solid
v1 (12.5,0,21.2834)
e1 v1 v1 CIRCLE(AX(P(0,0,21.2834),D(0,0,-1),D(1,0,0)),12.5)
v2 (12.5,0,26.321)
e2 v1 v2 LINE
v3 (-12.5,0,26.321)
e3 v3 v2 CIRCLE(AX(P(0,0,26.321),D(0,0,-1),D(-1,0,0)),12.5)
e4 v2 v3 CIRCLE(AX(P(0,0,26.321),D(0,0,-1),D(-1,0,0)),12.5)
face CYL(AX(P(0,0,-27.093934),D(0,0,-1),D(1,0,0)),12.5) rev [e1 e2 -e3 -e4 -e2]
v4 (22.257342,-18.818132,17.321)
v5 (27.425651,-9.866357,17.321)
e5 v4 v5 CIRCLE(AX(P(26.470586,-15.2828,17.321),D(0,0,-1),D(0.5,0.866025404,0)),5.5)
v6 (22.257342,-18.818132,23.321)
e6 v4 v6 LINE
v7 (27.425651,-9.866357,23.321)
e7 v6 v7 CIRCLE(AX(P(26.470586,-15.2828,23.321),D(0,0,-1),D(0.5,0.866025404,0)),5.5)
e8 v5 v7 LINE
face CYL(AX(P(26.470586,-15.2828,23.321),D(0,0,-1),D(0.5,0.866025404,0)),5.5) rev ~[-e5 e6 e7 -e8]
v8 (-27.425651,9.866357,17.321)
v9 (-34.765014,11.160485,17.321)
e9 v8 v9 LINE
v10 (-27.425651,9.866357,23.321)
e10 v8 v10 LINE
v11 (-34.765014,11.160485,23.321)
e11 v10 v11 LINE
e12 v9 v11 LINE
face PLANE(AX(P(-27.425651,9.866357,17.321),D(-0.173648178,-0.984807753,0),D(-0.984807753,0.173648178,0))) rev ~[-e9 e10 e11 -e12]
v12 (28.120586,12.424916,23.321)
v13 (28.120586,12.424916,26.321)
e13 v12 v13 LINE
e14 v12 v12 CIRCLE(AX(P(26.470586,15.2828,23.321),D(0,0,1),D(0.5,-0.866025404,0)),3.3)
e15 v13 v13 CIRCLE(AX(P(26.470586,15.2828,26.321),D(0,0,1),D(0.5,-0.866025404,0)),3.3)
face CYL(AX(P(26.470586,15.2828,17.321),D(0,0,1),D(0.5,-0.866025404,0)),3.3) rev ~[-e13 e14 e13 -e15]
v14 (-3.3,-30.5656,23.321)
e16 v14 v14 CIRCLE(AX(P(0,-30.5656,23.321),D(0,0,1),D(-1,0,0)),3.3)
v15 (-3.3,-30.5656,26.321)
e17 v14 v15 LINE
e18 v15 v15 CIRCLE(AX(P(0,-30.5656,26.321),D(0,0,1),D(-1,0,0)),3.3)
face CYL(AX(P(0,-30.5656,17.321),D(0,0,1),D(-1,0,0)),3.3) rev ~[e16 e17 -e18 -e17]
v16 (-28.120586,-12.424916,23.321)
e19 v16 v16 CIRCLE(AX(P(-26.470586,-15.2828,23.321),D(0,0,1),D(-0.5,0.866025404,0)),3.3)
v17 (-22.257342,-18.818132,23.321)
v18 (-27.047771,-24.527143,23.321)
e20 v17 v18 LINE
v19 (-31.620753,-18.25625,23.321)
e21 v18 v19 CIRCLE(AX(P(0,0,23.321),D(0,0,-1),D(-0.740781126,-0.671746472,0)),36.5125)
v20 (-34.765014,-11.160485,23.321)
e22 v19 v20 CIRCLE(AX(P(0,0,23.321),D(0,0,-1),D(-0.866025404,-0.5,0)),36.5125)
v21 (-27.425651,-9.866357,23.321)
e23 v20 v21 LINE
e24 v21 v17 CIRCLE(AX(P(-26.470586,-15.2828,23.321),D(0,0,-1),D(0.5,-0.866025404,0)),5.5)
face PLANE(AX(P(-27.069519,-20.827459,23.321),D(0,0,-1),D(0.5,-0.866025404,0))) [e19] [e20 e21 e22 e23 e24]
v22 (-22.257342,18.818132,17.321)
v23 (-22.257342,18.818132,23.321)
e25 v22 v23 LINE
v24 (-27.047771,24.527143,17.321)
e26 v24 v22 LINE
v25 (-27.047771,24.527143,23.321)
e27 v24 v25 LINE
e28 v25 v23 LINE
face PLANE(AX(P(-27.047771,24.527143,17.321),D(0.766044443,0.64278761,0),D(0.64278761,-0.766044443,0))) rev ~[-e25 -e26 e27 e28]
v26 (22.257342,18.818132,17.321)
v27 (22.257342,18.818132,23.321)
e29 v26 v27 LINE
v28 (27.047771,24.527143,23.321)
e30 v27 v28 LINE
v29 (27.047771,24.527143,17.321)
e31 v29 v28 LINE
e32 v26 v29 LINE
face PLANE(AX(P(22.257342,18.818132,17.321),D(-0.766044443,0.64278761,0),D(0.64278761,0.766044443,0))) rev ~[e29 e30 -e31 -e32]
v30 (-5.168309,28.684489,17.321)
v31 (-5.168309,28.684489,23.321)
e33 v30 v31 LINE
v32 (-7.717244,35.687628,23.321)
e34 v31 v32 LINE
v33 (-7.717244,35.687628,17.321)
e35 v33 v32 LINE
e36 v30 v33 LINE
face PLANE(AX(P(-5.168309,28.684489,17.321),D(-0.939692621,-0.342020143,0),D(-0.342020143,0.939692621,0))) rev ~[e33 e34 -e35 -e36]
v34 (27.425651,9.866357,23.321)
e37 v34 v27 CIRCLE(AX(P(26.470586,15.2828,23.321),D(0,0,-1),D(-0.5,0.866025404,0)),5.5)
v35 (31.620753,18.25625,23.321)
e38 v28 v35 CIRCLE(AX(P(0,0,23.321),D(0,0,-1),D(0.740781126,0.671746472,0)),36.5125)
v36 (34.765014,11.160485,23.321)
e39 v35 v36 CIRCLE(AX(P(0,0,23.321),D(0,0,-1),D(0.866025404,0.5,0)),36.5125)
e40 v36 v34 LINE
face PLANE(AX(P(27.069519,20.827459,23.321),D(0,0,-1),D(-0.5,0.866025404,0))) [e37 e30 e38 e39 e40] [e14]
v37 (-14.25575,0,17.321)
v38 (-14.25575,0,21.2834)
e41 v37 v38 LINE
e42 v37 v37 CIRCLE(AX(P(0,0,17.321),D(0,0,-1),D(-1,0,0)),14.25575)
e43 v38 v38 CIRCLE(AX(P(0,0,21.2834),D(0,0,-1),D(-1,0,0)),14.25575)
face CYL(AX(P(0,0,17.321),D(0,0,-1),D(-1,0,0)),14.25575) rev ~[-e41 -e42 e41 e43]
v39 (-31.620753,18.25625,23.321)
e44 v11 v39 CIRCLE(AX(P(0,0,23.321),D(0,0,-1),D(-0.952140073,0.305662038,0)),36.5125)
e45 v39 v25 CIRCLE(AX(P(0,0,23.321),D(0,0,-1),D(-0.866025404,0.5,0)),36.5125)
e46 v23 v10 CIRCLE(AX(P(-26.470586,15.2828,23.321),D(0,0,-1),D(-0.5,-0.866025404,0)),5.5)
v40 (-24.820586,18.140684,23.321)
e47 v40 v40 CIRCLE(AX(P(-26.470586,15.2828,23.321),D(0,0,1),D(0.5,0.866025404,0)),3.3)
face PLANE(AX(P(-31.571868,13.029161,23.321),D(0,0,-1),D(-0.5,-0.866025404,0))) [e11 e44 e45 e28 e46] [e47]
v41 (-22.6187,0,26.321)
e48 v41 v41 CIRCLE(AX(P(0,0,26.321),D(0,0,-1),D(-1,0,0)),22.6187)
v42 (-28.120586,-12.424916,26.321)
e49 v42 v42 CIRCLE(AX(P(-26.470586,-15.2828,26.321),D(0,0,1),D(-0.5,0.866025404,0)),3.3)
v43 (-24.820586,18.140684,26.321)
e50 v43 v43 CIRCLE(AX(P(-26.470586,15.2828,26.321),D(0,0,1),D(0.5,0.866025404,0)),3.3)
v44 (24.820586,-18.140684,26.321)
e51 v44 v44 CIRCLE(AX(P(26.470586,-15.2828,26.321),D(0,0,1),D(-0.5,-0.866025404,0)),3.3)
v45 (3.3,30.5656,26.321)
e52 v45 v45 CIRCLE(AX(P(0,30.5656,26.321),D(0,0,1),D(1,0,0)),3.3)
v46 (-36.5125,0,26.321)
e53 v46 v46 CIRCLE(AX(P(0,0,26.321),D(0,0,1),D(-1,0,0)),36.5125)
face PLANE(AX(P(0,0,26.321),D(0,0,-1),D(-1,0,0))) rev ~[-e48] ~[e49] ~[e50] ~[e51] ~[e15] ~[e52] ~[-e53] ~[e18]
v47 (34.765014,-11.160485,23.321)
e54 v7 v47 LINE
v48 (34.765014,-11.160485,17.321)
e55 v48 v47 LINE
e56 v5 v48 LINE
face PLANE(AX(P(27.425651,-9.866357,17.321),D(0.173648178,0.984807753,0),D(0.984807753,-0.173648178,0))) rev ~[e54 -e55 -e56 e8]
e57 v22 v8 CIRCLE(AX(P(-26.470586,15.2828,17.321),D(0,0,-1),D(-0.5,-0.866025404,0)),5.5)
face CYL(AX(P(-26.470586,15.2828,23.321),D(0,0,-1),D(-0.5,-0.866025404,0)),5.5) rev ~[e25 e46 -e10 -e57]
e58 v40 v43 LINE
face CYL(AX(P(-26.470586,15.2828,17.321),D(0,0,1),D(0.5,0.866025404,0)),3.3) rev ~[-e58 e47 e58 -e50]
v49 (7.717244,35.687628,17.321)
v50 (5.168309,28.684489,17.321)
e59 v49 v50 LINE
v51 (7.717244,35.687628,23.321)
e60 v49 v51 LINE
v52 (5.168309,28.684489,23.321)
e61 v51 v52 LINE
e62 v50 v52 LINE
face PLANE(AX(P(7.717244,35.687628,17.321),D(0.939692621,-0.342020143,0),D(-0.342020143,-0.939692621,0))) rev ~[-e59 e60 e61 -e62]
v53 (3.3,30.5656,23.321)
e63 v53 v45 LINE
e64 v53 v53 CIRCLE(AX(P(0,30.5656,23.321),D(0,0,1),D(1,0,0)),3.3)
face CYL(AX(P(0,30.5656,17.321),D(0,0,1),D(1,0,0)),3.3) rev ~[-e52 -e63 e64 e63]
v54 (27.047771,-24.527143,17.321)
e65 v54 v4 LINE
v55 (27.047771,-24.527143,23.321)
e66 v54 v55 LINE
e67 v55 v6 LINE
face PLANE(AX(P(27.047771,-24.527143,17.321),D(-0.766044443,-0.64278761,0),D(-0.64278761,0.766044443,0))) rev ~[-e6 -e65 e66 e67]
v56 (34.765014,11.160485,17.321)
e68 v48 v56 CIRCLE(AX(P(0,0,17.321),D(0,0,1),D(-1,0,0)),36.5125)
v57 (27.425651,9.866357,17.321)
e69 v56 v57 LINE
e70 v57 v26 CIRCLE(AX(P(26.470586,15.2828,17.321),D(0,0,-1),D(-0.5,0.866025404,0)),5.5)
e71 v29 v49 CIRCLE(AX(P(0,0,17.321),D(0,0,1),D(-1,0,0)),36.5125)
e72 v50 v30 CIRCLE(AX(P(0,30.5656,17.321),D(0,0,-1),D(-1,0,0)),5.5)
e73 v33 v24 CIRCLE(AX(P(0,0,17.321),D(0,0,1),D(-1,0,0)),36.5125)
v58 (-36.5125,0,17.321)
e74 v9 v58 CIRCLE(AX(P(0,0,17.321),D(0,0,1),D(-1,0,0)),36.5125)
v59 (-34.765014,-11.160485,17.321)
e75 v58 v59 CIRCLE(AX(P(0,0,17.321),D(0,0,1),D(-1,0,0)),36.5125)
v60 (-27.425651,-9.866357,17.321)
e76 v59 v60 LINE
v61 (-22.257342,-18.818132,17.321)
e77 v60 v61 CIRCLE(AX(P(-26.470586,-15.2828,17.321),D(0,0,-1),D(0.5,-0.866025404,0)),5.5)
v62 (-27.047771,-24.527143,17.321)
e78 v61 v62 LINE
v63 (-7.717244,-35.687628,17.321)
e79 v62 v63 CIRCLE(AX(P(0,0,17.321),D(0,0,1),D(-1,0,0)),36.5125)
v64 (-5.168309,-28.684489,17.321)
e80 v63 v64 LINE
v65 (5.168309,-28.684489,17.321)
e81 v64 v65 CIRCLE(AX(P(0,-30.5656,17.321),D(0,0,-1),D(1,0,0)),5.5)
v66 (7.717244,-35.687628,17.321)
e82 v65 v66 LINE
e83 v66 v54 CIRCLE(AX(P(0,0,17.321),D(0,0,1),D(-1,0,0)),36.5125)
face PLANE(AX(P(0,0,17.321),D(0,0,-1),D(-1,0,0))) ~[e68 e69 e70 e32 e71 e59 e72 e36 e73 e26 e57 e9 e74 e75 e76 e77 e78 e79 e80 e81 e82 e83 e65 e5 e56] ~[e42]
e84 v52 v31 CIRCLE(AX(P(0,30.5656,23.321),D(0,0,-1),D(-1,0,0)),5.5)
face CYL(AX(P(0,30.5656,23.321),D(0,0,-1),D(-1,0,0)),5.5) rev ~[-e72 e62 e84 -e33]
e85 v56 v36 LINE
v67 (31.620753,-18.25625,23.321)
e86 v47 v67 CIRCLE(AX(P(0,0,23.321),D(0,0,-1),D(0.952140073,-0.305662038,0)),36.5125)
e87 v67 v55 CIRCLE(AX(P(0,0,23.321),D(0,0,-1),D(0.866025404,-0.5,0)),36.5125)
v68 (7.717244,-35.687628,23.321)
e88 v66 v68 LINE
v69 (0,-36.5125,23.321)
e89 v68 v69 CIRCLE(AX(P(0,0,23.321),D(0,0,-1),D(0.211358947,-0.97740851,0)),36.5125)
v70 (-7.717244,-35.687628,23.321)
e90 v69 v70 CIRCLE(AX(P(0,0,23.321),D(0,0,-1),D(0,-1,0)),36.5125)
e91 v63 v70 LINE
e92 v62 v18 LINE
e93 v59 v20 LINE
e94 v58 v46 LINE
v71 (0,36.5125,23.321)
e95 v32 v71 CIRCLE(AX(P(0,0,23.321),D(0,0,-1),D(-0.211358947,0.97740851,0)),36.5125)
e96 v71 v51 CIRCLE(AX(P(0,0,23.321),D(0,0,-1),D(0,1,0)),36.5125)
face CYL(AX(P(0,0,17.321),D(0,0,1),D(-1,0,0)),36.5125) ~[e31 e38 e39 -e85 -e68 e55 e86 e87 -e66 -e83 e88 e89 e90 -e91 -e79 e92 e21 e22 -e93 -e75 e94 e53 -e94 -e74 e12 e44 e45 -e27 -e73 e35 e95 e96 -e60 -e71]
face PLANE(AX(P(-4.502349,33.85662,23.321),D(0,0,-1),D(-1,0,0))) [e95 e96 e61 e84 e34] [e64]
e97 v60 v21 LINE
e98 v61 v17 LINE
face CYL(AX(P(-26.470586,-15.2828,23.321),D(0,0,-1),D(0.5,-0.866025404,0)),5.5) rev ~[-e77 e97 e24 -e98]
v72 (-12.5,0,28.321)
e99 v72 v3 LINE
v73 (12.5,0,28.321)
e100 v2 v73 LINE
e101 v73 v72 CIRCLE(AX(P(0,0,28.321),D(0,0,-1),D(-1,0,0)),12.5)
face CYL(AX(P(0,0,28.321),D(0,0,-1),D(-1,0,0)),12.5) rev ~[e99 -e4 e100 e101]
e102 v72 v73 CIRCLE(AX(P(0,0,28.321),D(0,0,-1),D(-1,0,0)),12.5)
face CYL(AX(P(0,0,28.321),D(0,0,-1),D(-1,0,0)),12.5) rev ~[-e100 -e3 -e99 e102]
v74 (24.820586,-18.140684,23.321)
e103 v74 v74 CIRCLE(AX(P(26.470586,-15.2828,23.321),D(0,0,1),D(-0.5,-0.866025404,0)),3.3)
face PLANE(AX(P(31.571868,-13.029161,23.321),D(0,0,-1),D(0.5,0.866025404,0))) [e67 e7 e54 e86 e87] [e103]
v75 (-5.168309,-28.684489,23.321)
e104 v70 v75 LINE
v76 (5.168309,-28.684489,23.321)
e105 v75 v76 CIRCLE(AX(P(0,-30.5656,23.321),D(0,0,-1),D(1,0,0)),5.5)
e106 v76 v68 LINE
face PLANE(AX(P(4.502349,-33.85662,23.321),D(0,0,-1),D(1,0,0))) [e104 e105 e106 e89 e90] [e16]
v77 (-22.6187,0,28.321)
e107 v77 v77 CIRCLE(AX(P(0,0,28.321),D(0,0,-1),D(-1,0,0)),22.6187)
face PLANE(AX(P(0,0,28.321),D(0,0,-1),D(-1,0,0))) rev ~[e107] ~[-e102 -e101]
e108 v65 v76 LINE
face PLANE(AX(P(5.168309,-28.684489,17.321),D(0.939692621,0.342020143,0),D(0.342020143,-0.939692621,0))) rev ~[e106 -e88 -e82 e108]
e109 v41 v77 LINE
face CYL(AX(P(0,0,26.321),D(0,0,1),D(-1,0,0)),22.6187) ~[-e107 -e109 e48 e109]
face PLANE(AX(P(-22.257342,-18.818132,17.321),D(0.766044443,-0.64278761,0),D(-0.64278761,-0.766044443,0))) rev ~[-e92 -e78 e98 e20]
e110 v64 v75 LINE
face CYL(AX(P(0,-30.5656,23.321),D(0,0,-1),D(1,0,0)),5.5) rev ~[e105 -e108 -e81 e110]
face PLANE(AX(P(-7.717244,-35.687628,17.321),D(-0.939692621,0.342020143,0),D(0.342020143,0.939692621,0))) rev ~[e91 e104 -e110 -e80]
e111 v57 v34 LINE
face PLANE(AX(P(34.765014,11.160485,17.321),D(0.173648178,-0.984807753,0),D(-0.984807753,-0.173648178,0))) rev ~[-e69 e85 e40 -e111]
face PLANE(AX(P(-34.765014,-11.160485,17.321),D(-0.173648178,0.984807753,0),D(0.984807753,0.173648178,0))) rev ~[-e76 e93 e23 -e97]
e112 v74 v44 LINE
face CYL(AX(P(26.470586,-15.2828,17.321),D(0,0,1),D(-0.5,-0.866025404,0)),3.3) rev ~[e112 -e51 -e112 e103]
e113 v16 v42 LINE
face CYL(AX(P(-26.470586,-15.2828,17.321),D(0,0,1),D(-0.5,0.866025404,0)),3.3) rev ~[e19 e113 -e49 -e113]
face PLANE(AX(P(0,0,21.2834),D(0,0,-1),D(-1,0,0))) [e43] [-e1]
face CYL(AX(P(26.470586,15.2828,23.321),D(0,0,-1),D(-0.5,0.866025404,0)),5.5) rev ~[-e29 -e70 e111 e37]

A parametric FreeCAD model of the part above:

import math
import FreeCAD as App
import Part
import Sketcher

V = App.Vector
Q = App.Units.Quantity

doc = App.newDocument("Part")
body = doc.addObject("PartDesign::Body", "Body")

# Sketch on YZ plane
sketch1 = doc.addObject("Sketcher::SketchObject", "Sketch")
body.addObject(sketch1)
sketch1.AttachmentSupport = (doc.YZ_Plane, [""])
sketch1.MapMode = "FlatFace"
sketch1.addGeometry([
    Part.LineSegment(V(-22.6, 26.3, 0), V(-36.5, 26.3, 0)),  # 0
    Part.LineSegment(V(-36.5, 26.3, 0), V(-36.5, 17.3, 0)),  # 1
    Part.LineSegment(V(-36.5, 17.3, 0), V(-9.5, 17.3, 0)),  # 2
    Part.LineSegment(V(-9.5, 17.3, 0), V(-9.5, 26.3, 0)),  # 3
    Part.LineSegment(V(-9.5, 26.3, 0), V(-12.5, 26.3, 0)),  # 4
    Part.LineSegment(V(-12.5, 26.3, 0), V(-12.5, 28.3, 0)),  # 5
    Part.LineSegment(V(-12.5, 28.3, 0), V(-22.6, 28.3, 0)),  # 6
    Part.LineSegment(V(-22.6, 28.3, 0), V(-22.6, 26.3, 0)),  # 7
    Part.LineSegment(V(36.5, 26.3, 0), V(22.6, 26.3, 0)),  # 8
    Part.LineSegment(V(22.6, 26.3, 0), V(22.6, 28.3, 0)),  # 9
    Part.LineSegment(V(22.6, 28.3, 0), V(12.5, 28.3, 0)),  # 10
    Part.LineSegment(V(12.5, 28.3, 0), V(12.5, 26.3, 0)),  # 11
    Part.LineSegment(V(12.5, 26.3, 0), V(9.5, 26.3, 0)),  # 12
    Part.LineSegment(V(9.5, 26.3, 0), V(9.5, 17.3, 0)),  # 13
    Part.LineSegment(V(9.5, 17.3, 0), V(36.5, 17.3, 0)),  # 14
    Part.LineSegment(V(36.5, 17.3, 0), V(36.5, 26.3, 0)),  # 15
], False)
sketch1.addConstraint([
    Sketcher.Constraint("Coincident", 0, 2, 1, 1),
    Sketcher.Constraint("Coincident", 1, 2, 2, 1),
    Sketcher.Constraint("Coincident", 2, 2, 3, 1),
    Sketcher.Constraint("Coincident", 3, 2, 4, 1),
    Sketcher.Constraint("Coincident", 4, 2, 5, 1),
    Sketcher.Constraint("Coincident", 5, 2, 6, 1),
    Sketcher.Constraint("Coincident", 6, 2, 7, 1),
    Sketcher.Constraint("Coincident", 7, 2, 0, 1),
    Sketcher.Constraint("Coincident", 8, 2, 9, 1),
    Sketcher.Constraint("Coincident", 9, 2, 10, 1),
    Sketcher.Constraint("Coincident", 10, 2, 11, 1),
    Sketcher.Constraint("Coincident", 11, 2, 12, 1),
    Sketcher.Constraint("Coincident", 12, 2, 13, 1),
    Sketcher.Constraint("Coincident", 13, 2, 14, 1),
    Sketcher.Constraint("Coincident", 14, 2, 15, 1),
    Sketcher.Constraint("Coincident", 15, 2, 8, 1),
    Sketcher.Constraint("Horizontal", 0),
    Sketcher.Constraint("Vertical", 1),
    Sketcher.Constraint("Horizontal", 2),
    Sketcher.Constraint("Vertical", 3),
    Sketcher.Constraint("Horizontal", 4),
    Sketcher.Constraint("Vertical", 5),
    Sketcher.Constraint("Horizontal", 6),
    Sketcher.Constraint("Vertical", 7),
    Sketcher.Constraint("Horizontal", 8),
    Sketcher.Constraint("Vertical", 9),
    Sketcher.Constraint("Horizontal", 10),
    Sketcher.Constraint("Vertical", 11),
    Sketcher.Constraint("Horizontal", 12),
    Sketcher.Constraint("Vertical", 13),
    Sketcher.Constraint("Horizontal", 14),
    Sketcher.Constraint("Vertical", 15),
    Sketcher.Constraint("Symmetric", 7, 2, 8, 2, -2),
    Sketcher.Constraint("Symmetric", 5, 2, 10, 2, -2),
    Sketcher.Constraint("Symmetric", 3, 2, 12, 2, -2),
    Sketcher.Constraint("Symmetric", 1, 2, 14, 2, -2),
    Sketcher.Constraint("Horizontal", 0, 2, 3, 2),
    Sketcher.Constraint("DistanceY", 1, 2, 1, 1, Q("9 mm")),
    Sketcher.Constraint("DistanceY", 5, 1, 5, 2, Q("2 mm")),
    Sketcher.Constraint("DistanceX", 5, 2, 10, 2, Q("25 mm")),
    Sketcher.Constraint("DistanceX", 4, 2, 4, 1, Q("2.975 mm")),
    Sketcher.Constraint("DistanceX", 0, 2, 0, 1, Q("13.8938 mm")),
    Sketcher.Constraint("DistanceX", 2, 1, 2, 2, Q("26.9875 mm")),
    Sketcher.Constraint("DistanceY", -1, 1, 0, 2, Q("26.321 mm")),
])
revolution = doc.addObject("PartDesign::Revolution", "Revolution")
body.addObject(revolution)
revolution.Profile = sketch1
revolution.ReferenceAxis = (sketch1, ["V_Axis"])
revolution.Angle = 360

# Sketch on XY plane
sketch2 = doc.addObject("Sketcher::SketchObject", "Sketch001")
body.addObject(sketch2)
sketch2.AttachmentSupport = (doc.XY_Plane, [""])
sketch2.MapMode = "FlatFace"
sketch2.AttachmentOffset = App.Placement(V(0, 0, 26.321), App.Rotation())
sketch2.addGeometry(Part.Circle(V(0, 0, 0), V(0, 0, 1), 12), False)
sketch2.addConstraint([
    Sketcher.Constraint("Coincident", 0, 3, -1, 1),
    Sketcher.Constraint("Diameter", 0, Q("25 mm")),
])
pocket1 = doc.addObject("PartDesign::Pocket", "Pocket")
body.addObject(pocket1)
pocket1.Profile = sketch2
pocket1.Type = "ThroughAll"
pocket1.Midplane = True

# Sketch on XY plane
sketch3 = doc.addObject("Sketcher::SketchObject", "Sketch002")
body.addObject(sketch3)
sketch3.AttachmentSupport = (doc.XY_Plane, [""])
sketch3.MapMode = "FlatFace"
sketch3.AttachmentOffset = App.Placement(V(0, 0, 17.321), App.Rotation())
sketch3.addGeometry(Part.Circle(V(0, 30.6, 0), V(0, 0, 1), 3.3), False)
sketch3.addConstraint([
    Sketcher.Constraint("PointOnObject", 0, 3, -2),
    Sketcher.Constraint("Diameter", 0, Q("6.6 mm")),
    Sketcher.Constraint("DistanceY", -1, 1, 0, 3, Q("30.5656 mm")),
])
doc.recompute()
hole = doc.addObject("PartDesign::Hole", "Hole")
body.addObject(hole)
hole.Profile = sketch3
hole.ThreadType = "None"
hole.Diameter = 6.6
hole.DepthType = "ThroughAll"
hole.HoleCutType = "Counterbore"
hole.HoleCutDiameter = 11
hole.HoleCutDepth = 6
hole.Reversed = True
doc.recompute()

polarpattern = doc.addObject("PartDesign::PolarPattern", "PolarPattern")
body.addObject(polarpattern)
polarpattern.Originals = [hole]
polarpattern.Axis = (doc.Z_Axis, [""])
polarpattern.Angle = 360
polarpattern.Occurrences = 6
body.Tip = polarpattern

# Sketch on XY plane
sketch4 = doc.addObject("Sketcher::SketchObject", "Sketch003")
body.addObject(sketch4)
sketch4.AttachmentSupport = (doc.XY_Plane, [""])
sketch4.MapMode = "FlatFace"
sketch4.AttachmentOffset = App.Placement(V(0, 0, 17.321), App.Rotation())
sketch4.addGeometry(Part.Circle(V(0, 0, 0), V(0, 0, 1), 14), False)
sketch4.addConstraint([
    Sketcher.Constraint("Coincident", 0, 3, -1, 1),
    Sketcher.Constraint("Diameter", 0, Q("28.5115 mm")),
])
pocket2 = doc.addObject("PartDesign::Pocket", "Pocket001")
body.addObject(pocket2)
pocket2.Profile = sketch4
pocket2.Length = 3.9624
pocket2.Reversed = True

# Sketch on XY plane
sketch5 = doc.addObject("Sketcher::SketchObject", "Sketch004")
body.addObject(sketch5)
sketch5.AttachmentSupport = (doc.XY_Plane, [""])
sketch5.MapMode = "FlatFace"
sketch5.AttachmentOffset = App.Placement(V(0, 0, 17.321), App.Rotation())
sketch5.addGeometry([
    Part.ArcOfCircle(Part.Circle(V(0, 30.6, 0), V(0, 0, 1), 5.5), math.radians(180), math.radians(200)),  # 0
    Part.LineSegment(V(-5.2, 28.7, 0), V(-7.7, 35.7, 0)),  # 1
    Part.ArcOfCircle(Part.Circle(V(0, 0, 0), V(0, 0, 1), 36.5), math.radians(90), math.radians(102.2)),  # 2
    Part.ArcOfCircle(Part.Circle(V(0, 0, 0), V(0, 0, 1), 36.5), math.radians(77.8), math.radians(90)),  # 3
    Part.LineSegment(V(7.7, 35.7, 0), V(5.2, 28.7, 0)),  # 4
    Part.ArcOfCircle(Part.Circle(V(0, 30.6, 0), V(0, 0, 1), 5.5), math.radians(-20), math.radians(90)),  # 5
    Part.ArcOfCircle(Part.Circle(V(0, 30.6, 0), V(0, 0, 1), 5.5), math.radians(90), math.radians(180)),  # 6
], False)
sketch5.addConstraint([
    Sketcher.Constraint("Tangent", 0, 2, 1, 1),
    Sketcher.Constraint("Coincident", 1, 2, 2, 2),
    Sketcher.Constraint("Tangent", 2, 1, 3, 2),
    Sketcher.Constraint("Coincident", 3, 1, 4, 1),
    Sketcher.Constraint("Tangent", 4, 2, 5, 1),
    Sketcher.Constraint("Tangent", 5, 2, 6, 1),
    Sketcher.Constraint("Tangent", 6, 2, 0, 1),
    Sketcher.Constraint("Coincident", 2, 3, -1, 1),
    Sketcher.Constraint("Coincident", 5, 3, 0, 3),
    Sketcher.Constraint("Equal", 2, 3),
    Sketcher.Constraint("Symmetric", 0, 2, 4, 2, -2),
    Sketcher.Constraint("PointOnObject", 2, 1, -2),
    Sketcher.Constraint("PointOnObject", 5, 2, -2),
    Sketcher.Constraint("Horizontal", 5, 3, 6, 2),
    Sketcher.Constraint("Radius", 0, Q("5.5 mm")),
    Sketcher.Constraint("Angle", 1, Q("110 deg")),
    Sketcher.Constraint("Radius", 2, Q("36.5125 mm")),
    Sketcher.Constraint("DistanceY", -1, 1, 0, 3, Q("30.5656 mm")),
])
pocket3 = doc.addObject("PartDesign::Pocket", "Pocket002")
body.addObject(pocket3)
pocket3.Profile = sketch5
pocket3.Length = 6
pocket3.Reversed = True
doc.recompute()

polarpattern2 = doc.addObject("PartDesign::PolarPattern", "PolarPattern001")
body.addObject(polarpattern2)
polarpattern2.Originals = [pocket3]
polarpattern2.Axis = (doc.Z_Axis, [""])
polarpattern2.Angle = 360
polarpattern2.Occurrences = 6
body.Tip = polarpattern2

doc.recompute()
